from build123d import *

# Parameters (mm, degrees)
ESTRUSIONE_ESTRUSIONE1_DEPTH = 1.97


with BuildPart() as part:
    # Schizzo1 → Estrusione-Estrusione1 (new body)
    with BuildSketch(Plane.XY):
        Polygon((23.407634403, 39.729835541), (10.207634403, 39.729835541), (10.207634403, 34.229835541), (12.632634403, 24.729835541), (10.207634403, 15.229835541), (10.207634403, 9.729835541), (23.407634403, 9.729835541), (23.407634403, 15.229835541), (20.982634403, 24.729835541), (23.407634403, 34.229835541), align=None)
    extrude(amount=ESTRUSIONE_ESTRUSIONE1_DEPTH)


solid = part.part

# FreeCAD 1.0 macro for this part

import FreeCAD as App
import Part
import Sketcher

V = App.Vector
Q = App.Units.Quantity


def add_polygon(sketch, points):
    """Adds a closed chain of lines whose ends are joined by coincident constraints."""
    first, n = sketch.GeometryCount, len(points)
    for a, b in zip(points, points[1:] + points[:1]):
        sketch.addGeometry(Part.LineSegment(App.Vector(*a, 0), App.Vector(*b, 0)), False)
    for i in range(n):
        sketch.addConstraint(Sketcher.Constraint("Coincident", first + i, 2, first + (i + 1) % n, 1))

doc = App.newDocument("Part")
body = doc.addObject("PartDesign::Body", "Body")

sketch1 = body.newObject("Sketcher::SketchObject", "Sketch")
sketch1.AttachmentSupport = (doc.getObject("XY_Plane"), [""])
sketch1.MapMode = "FlatFace"
add_polygon(sketch1, [(23, 40), (10, 40), (10, 34), (13, 25), (10, 15), (10, 10), (23, 10), (23, 15), (21, 25), (23, 34)])
sketch1.addConstraint([
    Sketcher.Constraint("Horizontal", 0),
    Sketcher.Constraint("Vertical", 1),
    Sketcher.Constraint("Vertical", 4),
    Sketcher.Constraint("Horizontal", 5),
    Sketcher.Constraint("Vertical", 6),
    Sketcher.Constraint("Vertical", 9),
    Sketcher.Constraint("Parallel", 2, 7),
    Sketcher.Constraint("Parallel", 3, 8),
    Sketcher.Constraint("Horizontal", 3, 2, 6, 2),
    Sketcher.Constraint("Horizontal", 2, 2, 7, 2),
    Sketcher.Constraint("Horizontal", 1, 2, 8, 2),
    Sketcher.Constraint("Vertical", 1, 2, 3, 2),
    Sketcher.Constraint("Vertical", 6, 2, 8, 2),
    Sketcher.Constraint("Equal", 1, 4),
    Sketcher.Constraint("DistanceX", 0, 2, 0, 1, Q("13.2 mm")),
    Sketcher.Constraint("DistanceY", 1, 2, 1, 1, Q("5.5 mm")),
    Sketcher.Constraint("DistanceY", 2, 2, 0, 2, Q("15 mm")),
    Sketcher.Constraint("DistanceX", 2, 2, 7, 2, Q("8.35 mm")),
    Sketcher.Constraint("DistanceX", -1, 1, 0, 2, Q("10.207634 mm")),
    Sketcher.Constraint("DistanceY", -1, 1, 0, 2, Q("39.729836 mm")),
])
pad1 = body.newObject("PartDesign::Pad", "Pad")
pad1.Profile = sketch1
pad1.Length = 1.97

doc.recompute()
